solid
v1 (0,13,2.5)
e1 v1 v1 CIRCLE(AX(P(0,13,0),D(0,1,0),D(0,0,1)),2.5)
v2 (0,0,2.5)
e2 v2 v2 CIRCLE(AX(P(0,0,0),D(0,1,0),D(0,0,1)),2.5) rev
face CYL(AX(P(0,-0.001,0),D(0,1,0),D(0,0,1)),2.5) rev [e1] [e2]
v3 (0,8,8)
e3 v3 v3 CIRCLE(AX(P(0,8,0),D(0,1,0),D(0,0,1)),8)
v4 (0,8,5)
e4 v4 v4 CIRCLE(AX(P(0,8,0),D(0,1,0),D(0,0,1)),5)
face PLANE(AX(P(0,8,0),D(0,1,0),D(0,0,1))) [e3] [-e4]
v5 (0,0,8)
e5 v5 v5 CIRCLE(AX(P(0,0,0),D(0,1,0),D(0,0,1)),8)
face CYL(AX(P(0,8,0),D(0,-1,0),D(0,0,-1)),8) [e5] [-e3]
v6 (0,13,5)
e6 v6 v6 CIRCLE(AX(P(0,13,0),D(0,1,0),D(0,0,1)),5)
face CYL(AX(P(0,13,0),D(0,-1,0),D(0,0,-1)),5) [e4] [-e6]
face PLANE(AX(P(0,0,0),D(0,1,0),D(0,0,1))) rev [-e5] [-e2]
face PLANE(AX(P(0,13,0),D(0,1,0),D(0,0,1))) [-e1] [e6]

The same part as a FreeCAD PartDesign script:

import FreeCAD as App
import Part
import Sketcher

doc = App.newDocument("Part")
body = doc.addObject("PartDesign::Body", "Body")

sketch1 = body.newObject("Sketcher::SketchObject", "Sketch")
sketch1.AttachmentSupport = (doc.getObject("XZ_Plane"), [""])
sketch1.MapMode = "FlatFace"
sketch1.addGeometry(Part.Circle(App.Vector(0, 0, 0), App.Vector(0, 0, 1), 8), False)
sketch1.addConstraint([
    Sketcher.Constraint("Coincident", 0, 3, -1, 1),
    Sketcher.Constraint("Diameter", 0, 16.0),
])
pad1 = body.newObject("PartDesign::Pad", "Pad")
pad1.Profile = sketch1
pad1.Length = 8
pad1.Reversed = True

sketch2 = body.newObject("Sketcher::SketchObject", "Sketch001")
sketch2.AttachmentSupport = (doc.getObject("XZ_Plane"), [""])
sketch2.MapMode = "FlatFace"
sketch2.AttachmentOffset = App.Placement(App.Vector(0, 0, -8), App.Rotation())
sketch2.addGeometry(Part.Circle(App.Vector(0, 0, 0), App.Vector(0, 0, 1), 5), False)
sketch2.addConstraint([
    Sketcher.Constraint("Coincident", 0, 3, -1, 1),
    Sketcher.Constraint("Diameter", 0, 10.0),
])
pad2 = body.newObject("PartDesign::Pad", "Pad001")
pad2.Profile = sketch2
pad2.Length = 5
pad2.Reversed = True

sketch3 = body.newObject("Sketcher::SketchObject", "Sketch002")
sketch3.AttachmentSupport = (doc.getObject("XZ_Plane"), [""])
sketch3.MapMode = "FlatFace"
sketch3.AttachmentOffset = App.Placement(App.Vector(0, 0, -13), App.Rotation())
sketch3.addGeometry(Part.Circle(App.Vector(0, 0, 0), App.Vector(0, 0, 1), 2.5), False)
sketch3.addConstraint([
    Sketcher.Constraint("Coincident", 0, 3, -1, 1),
    Sketcher.Constraint("Diameter", 0, 5.0),
])
pocket1 = body.newObject("PartDesign::Pocket", "Pocket")
pocket1.Profile = sketch3
pocket1.Type = "UpToFirst"
pocket1.Reversed = True

doc.recompute()
